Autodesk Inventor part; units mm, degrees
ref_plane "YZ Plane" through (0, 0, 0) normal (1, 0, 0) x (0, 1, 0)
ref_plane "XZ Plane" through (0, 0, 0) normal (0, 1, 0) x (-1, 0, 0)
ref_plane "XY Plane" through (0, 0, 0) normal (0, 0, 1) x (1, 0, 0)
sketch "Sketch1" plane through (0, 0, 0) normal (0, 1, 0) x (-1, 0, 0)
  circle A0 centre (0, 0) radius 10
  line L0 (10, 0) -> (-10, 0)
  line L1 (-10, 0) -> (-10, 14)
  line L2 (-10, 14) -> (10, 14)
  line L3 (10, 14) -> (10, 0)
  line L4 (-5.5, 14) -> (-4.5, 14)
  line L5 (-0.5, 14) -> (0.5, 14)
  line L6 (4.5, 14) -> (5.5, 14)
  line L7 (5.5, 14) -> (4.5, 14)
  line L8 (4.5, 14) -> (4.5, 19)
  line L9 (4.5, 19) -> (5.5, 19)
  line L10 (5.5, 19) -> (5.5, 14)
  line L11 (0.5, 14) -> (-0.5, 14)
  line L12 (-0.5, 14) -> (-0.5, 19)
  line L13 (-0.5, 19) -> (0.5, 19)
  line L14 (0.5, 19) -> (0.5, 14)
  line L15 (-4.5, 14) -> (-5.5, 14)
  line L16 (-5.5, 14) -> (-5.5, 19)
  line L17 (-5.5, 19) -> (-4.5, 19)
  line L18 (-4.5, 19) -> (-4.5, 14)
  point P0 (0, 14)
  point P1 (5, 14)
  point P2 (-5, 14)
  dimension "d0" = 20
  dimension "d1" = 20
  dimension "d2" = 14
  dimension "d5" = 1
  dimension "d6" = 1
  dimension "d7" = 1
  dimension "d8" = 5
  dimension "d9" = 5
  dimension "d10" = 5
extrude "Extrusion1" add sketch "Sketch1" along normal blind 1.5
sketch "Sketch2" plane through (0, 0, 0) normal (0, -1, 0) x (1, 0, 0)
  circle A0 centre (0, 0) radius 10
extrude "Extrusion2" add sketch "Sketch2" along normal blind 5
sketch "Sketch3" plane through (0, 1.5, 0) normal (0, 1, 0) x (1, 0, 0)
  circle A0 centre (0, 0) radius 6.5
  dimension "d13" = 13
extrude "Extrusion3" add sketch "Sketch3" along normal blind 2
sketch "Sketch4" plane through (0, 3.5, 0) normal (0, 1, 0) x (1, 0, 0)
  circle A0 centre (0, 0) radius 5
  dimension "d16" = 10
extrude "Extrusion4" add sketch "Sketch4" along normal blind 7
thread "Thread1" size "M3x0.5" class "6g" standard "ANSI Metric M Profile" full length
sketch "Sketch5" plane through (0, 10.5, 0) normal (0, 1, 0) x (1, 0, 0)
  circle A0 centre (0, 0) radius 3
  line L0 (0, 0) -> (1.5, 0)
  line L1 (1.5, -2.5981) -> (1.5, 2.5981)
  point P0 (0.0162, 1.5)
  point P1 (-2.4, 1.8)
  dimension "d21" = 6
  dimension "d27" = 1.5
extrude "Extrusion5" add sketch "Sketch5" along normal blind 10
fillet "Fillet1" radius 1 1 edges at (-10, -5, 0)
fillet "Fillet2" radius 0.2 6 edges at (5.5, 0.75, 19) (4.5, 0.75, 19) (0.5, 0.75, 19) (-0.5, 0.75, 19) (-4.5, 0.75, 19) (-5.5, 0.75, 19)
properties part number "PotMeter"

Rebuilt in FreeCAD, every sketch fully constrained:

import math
import FreeCAD as App
import Part
import Sketcher


def edges_at(feature, points):
    """Names of the edges that pass closest to the given points."""
    edges = feature.Shape.Edges
    near = lambda p: min(range(len(edges)), key=lambda i: edges[i].distToShape(Part.Vertex(*p))[0])
    return sorted({f"Edge{near(p) + 1}" for p in points})

doc = App.newDocument("Part")
body = doc.addObject("PartDesign::Body", "Body")

sketch1 = body.newObject("Sketcher::SketchObject", "Sketch")
sketch1.AttachmentSupport = (doc.getObject("XZ_Plane"), [""])
sketch1.MapMode = "FlatFace"
sketch1.addGeometry(Part.ArcOfCircle(Part.Circle(App.Vector(0, 0, 0), App.Vector(0, 0, 1), 10), math.radians(180), math.radians(360)), False)
sketch1.addGeometry(Part.LineSegment(App.Vector(-10, 0, 0), App.Vector(-10, 14, 0)), False)
sketch1.addGeometry(Part.LineSegment(App.Vector(-10, 14, 0), App.Vector(-5.5, 14, 0)), False)
sketch1.addGeometry(Part.LineSegment(App.Vector(-5.5, 14, 0), App.Vector(-5.5, 19, 0)), False)
sketch1.addGeometry(Part.LineSegment(App.Vector(-5.5, 19, 0), App.Vector(-4.5, 19, 0)), False)
sketch1.addGeometry(Part.LineSegment(App.Vector(-4.5, 19, 0), App.Vector(-4.5, 14, 0)), False)
sketch1.addGeometry(Part.LineSegment(App.Vector(-4.5, 14, 0), App.Vector(-0.5, 14, 0)), False)
sketch1.addGeometry(Part.LineSegment(App.Vector(-0.5, 14, 0), App.Vector(-0.5, 19, 0)), False)
sketch1.addGeometry(Part.LineSegment(App.Vector(-0.5, 19, 0), App.Vector(0.5, 19, 0)), False)
sketch1.addGeometry(Part.LineSegment(App.Vector(0.5, 19, 0), App.Vector(0.5, 14, 0)), False)
sketch1.addGeometry(Part.LineSegment(App.Vector(0.5, 14, 0), App.Vector(4.5, 14, 0)), False)
sketch1.addGeometry(Part.LineSegment(App.Vector(4.5, 14, 0), App.Vector(4.5, 19, 0)), False)
sketch1.addGeometry(Part.LineSegment(App.Vector(4.5, 19, 0), App.Vector(5.5, 19, 0)), False)
sketch1.addGeometry(Part.LineSegment(App.Vector(5.5, 19, 0), App.Vector(5.5, 14, 0)), False)
sketch1.addGeometry(Part.LineSegment(App.Vector(5.5, 14, 0), App.Vector(10, 14, 0)), False)
sketch1.addGeometry(Part.LineSegment(App.Vector(10, 14, 0), App.Vector(10, 0, 0)), False)
sketch1.addConstraint(Sketcher.Constraint("Tangent", 0, 1, 1, 1))
sketch1.addConstraint(Sketcher.Constraint("Coincident", 1, 2, 2, 1))
sketch1.addConstraint(Sketcher.Constraint("Coincident", 2, 2, 3, 1))
sketch1.addConstraint(Sketcher.Constraint("Coincident", 3, 2, 4, 1))
sketch1.addConstraint(Sketcher.Constraint("Coincident", 4, 2, 5, 1))
sketch1.addConstraint(Sketcher.Constraint("Coincident", 5, 2, 6, 1))
sketch1.addConstraint(Sketcher.Constraint("Coincident", 6, 2, 7, 1))
sketch1.addConstraint(Sketcher.Constraint("Coincident", 7, 2, 8, 1))
sketch1.addConstraint(Sketcher.Constraint("Coincident", 8, 2, 9, 1))
sketch1.addConstraint(Sketcher.Constraint("Coincident", 9, 2, 10, 1))
sketch1.addConstraint(Sketcher.Constraint("Coincident", 10, 2, 11, 1))
sketch1.addConstraint(Sketcher.Constraint("Coincident", 11, 2, 12, 1))
sketch1.addConstraint(Sketcher.Constraint("Coincident", 12, 2, 13, 1))
sketch1.addConstraint(Sketcher.Constraint("Coincident", 13, 2, 14, 1))
sketch1.addConstraint(Sketcher.Constraint("Coincident", 14, 2, 15, 1))
sketch1.addConstraint(Sketcher.Constraint("Tangent", 15, 2, 0, 2))
sketch1.addConstraint(Sketcher.Constraint("Vertical", 1))
sketch1.addConstraint(Sketcher.Constraint("Horizontal", 2))
sketch1.addConstraint(Sketcher.Constraint("Vertical", 3))
sketch1.addConstraint(Sketcher.Constraint("Horizontal", 4))
sketch1.addConstraint(Sketcher.Constraint("Vertical", 5))
sketch1.addConstraint(Sketcher.Constraint("Horizontal", 6))
sketch1.addConstraint(Sketcher.Constraint("Vertical", 7))
sketch1.addConstraint(Sketcher.Constraint("Horizontal", 8))
sketch1.addConstraint(Sketcher.Constraint("Vertical", 9))
sketch1.addConstraint(Sketcher.Constraint("Horizontal", 10))
sketch1.addConstraint(Sketcher.Constraint("Vertical", 11))
sketch1.addConstraint(Sketcher.Constraint("Horizontal", 12))
sketch1.addConstraint(Sketcher.Constraint("Vertical", 13))
sketch1.addConstraint(Sketcher.Constraint("Horizontal", 14))
sketch1.addConstraint(Sketcher.Constraint("Vertical", 15))
sketch1.addConstraint(Sketcher.Constraint("Coincident", 0, 3, -1, 1))
sketch1.addConstraint(Sketcher.Constraint("Symmetric", 6, 2, 9, 2, -2))
sketch1.addConstraint(Sketcher.Constraint("Symmetric", 4, 2, 11, 2, -2))
sketch1.addConstraint(Sketcher.Constraint("Symmetric", 2, 2, 13, 2, -2))
sketch1.addConstraint(Sketcher.Constraint("Horizontal", 2, 2, 5, 2))
sketch1.addConstraint(Sketcher.Constraint("Horizontal", 4, 2, 7, 2))
sketch1.addConstraint(Sketcher.Constraint("Equal", 4, 8))
sketch1.addConstraint(Sketcher.Constraint("Radius", 0, 10.0))
sketch1.addConstraint(Sketcher.Constraint("DistanceX", 4, 1, 4, 2, 1.0))
sketch1.addConstraint(Sketcher.Constraint("DistanceY", 1, 1, 1, 2, 14.0))
sketch1.addConstraint(Sketcher.Constraint("DistanceY", 3, 1, 3, 2, 5.0))
sketch1.addConstraint(Sketcher.Constraint("DistanceX", 2, 2, 6, 2, 5.0))
pad1 = body.newObject("PartDesign::Pad", "Pad")
pad1.Profile = sketch1
pad1.Length = 1.5
pad1.Reversed = True

sketch2 = body.newObject("Sketcher::SketchObject", "Sketch001")
sketch2.AttachmentSupport = (doc.getObject("XZ_Plane"), [""])
sketch2.MapMode = "FlatFace"
sketch2.addGeometry(Part.Circle(App.Vector(0, 0, 0), App.Vector(0, 0, 1), 10), False)
sketch2.addConstraint(Sketcher.Constraint("Coincident", 0, 3, -1, 1))
sketch2.addConstraint(Sketcher.Constraint("Diameter", 0, 20.0))
pad2 = body.newObject("PartDesign::Pad", "Pad001")
pad2.Profile = sketch2
pad2.Length = 5

sketch3 = body.newObject("Sketcher::SketchObject", "Sketch002")
sketch3.AttachmentSupport = (doc.getObject("XZ_Plane"), [""])
sketch3.MapMode = "FlatFace"
sketch3.AttachmentOffset = App.Placement(App.Vector(0, 0, -1.5), App.Rotation())
sketch3.addGeometry(Part.Circle(App.Vector(0, 0, 0), App.Vector(0, 0, 1), 6.5), False)
sketch3.addConstraint(Sketcher.Constraint("Coincident", 0, 3, -1, 1))
sketch3.addConstraint(Sketcher.Constraint("Diameter", 0, 13.0))
pad3 = body.newObject("PartDesign::Pad", "Pad002")
pad3.Profile = sketch3
pad3.Length = 2
pad3.Reversed = True

sketch4 = body.newObject("Sketcher::SketchObject", "Sketch003")
sketch4.AttachmentSupport = (doc.getObject("XZ_Plane"), [""])
sketch4.MapMode = "FlatFace"
sketch4.AttachmentOffset = App.Placement(App.Vector(0, 0, -3.5), App.Rotation())
sketch4.addGeometry(Part.Circle(App.Vector(0, 0, 0), App.Vector(0, 0, 1), 5), False)
sketch4.addConstraint(Sketcher.Constraint("Coincident", 0, 3, -1, 1))
sketch4.addConstraint(Sketcher.Constraint("Diameter", 0, 10.0))
pad4 = body.newObject("PartDesign::Pad", "Pad003")
pad4.Profile = sketch4
pad4.Length = 7
pad4.Reversed = True

sketch5 = body.newObject("Sketcher::SketchObject", "Sketch004")
sketch5.AttachmentSupport = (doc.getObject("XZ_Plane"), [""])
sketch5.MapMode = "FlatFace"
sketch5.AttachmentOffset = App.Placement(App.Vector(0, 0, -10.5), App.Rotation())
sketch5.addGeometry(Part.Circle(App.Vector(0, 0, 0), App.Vector(0, 0, 1), 3), False)
sketch5.addConstraint(Sketcher.Constraint("Coincident", 0, 3, -1, 1))
sketch5.addConstraint(Sketcher.Constraint("Diameter", 0, 6.0))
pad5 = body.newObject("PartDesign::Pad", "Pad004")
pad5.Profile = sketch5
pad5.Length = 10
pad5.Reversed = True
doc.recompute()

fillet = body.newObject("PartDesign::Fillet", "Fillet")
fillet.Base = (pad5, edges_at(pad5, [(-10, -5, 0)]))
fillet.Radius = 1
doc.recompute()

fillet2 = body.newObject("PartDesign::Fillet", "Fillet001")
fillet2.Base = (fillet, edges_at(fillet, [
    (5.5, 0.75, 19),
    (4.5, 0.75, 19),
    (0.5, 0.75, 19),
    (-0.5, 0.75, 19),
    (-4.5, 0.75, 19),
    (-5.5, 0.75, 19),
]))
fillet2.Radius = 0.2

doc.recompute()
